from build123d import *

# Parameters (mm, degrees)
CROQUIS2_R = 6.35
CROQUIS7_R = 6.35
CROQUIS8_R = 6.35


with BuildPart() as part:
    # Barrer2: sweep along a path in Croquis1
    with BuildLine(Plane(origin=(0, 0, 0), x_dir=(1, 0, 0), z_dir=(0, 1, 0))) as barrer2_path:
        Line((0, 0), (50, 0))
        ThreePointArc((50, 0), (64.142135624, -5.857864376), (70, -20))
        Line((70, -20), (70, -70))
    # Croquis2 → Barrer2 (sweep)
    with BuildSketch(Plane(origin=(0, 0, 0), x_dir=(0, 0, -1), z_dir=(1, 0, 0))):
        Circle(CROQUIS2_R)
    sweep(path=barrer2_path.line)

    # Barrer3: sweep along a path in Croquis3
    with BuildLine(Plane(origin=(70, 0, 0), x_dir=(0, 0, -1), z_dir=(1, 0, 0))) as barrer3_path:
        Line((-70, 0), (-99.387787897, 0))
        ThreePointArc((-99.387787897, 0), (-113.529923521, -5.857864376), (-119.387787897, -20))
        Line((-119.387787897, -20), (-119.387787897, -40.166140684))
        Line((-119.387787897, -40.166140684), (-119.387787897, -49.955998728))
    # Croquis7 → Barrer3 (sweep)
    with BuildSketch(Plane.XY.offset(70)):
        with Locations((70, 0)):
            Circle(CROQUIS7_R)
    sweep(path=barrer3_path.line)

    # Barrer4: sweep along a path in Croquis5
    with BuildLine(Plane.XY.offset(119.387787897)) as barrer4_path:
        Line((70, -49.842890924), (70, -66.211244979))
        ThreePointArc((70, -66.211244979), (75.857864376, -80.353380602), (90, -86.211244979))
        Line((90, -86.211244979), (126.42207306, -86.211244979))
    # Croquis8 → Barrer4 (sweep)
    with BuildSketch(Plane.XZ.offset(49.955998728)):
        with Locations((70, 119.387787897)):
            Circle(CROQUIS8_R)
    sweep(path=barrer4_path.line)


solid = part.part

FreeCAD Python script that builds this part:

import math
import FreeCAD as App
import Part
import Sketcher
Q = App.Units.Quantity

doc = App.newDocument("Part")
body = doc.addObject("PartDesign::Body", "Body")

sketch1 = body.newObject("Sketcher::SketchObject", "Sketch")
sketch1.AttachmentSupport = (doc.getObject("YZ_Plane"), [""])
sketch1.MapMode = "FlatFace"
sketch1.addGeometry(Part.Circle(App.Vector(0, 0, 0), App.Vector(0, 0, 1), 6), False)
sketch1.addConstraint([
    Sketcher.Constraint("Coincident", 0, 3, -1, 1),
    Sketcher.Constraint("Diameter", 0, Q("12.7 mm")),
])

sketch2 = body.newObject("Sketcher::SketchObject", "Sketch001")
sketch2.AttachmentSupport = (doc.getObject("XZ_Plane"), [""])
sketch2.MapMode = "FlatFace"
sketch2.addGeometry([
    Part.LineSegment(App.Vector(0, 0, 0), App.Vector(50, 0, 0)),
    Part.ArcOfCircle(Part.Circle(App.Vector(50, 20, 0), App.Vector(0, 0, 1), 20), math.radians(-90), math.radians(0)),
    Part.LineSegment(App.Vector(70, 20, 0), App.Vector(70, 70, 0)),
], False)
sketch2.addConstraint([
    Sketcher.Constraint("Tangent", 0, 2, 1, 1),
    Sketcher.Constraint("Tangent", 1, 2, 2, 1),
    Sketcher.Constraint("Horizontal", 0),
    Sketcher.Constraint("Vertical", 2),
    Sketcher.Constraint("Coincident", 0, 1, -1, 1),
    Sketcher.Constraint("Equal", 0, 2),
    Sketcher.Constraint("Radius", 1, Q("20 mm")),
    Sketcher.Constraint("DistanceX", 0, 1, 0, 2, Q("50 mm")),
])
doc.recompute()

additivepipe = body.newObject("PartDesign::AdditivePipe", "AdditivePipe")
additivepipe.Profile = sketch1
additivepipe.Spine = (sketch2, ["Edge1", "Edge2", "Edge3"])

sketch3 = body.newObject("Sketcher::SketchObject", "Sketch002")
sketch3.AttachmentSupport = (doc.getObject("XY_Plane"), [""])
sketch3.MapMode = "FlatFace"
sketch3.AttachmentOffset = App.Placement(App.Vector(0, 0, 70), App.Rotation())
sketch3.addGeometry(Part.Circle(App.Vector(70, 0, 0), App.Vector(0, 0, 1), 6), False)
sketch3.addConstraint([
    Sketcher.Constraint("PointOnObject", 0, 3, -1),
    Sketcher.Constraint("Diameter", 0, Q("12.7 mm")),
    Sketcher.Constraint("DistanceX", -1, 1, 0, 3, Q("70 mm")),
])

sketch4 = body.newObject("Sketcher::SketchObject", "Sketch003")
sketch4.AttachmentSupport = (doc.getObject("YZ_Plane"), [""])
sketch4.MapMode = "FlatFace"
sketch4.AttachmentOffset = App.Placement(App.Vector(0, 0, 70), App.Rotation())
sketch4.addGeometry([
    Part.LineSegment(App.Vector(0, 70, 0), App.Vector(0, 99, 0)),
    Part.ArcOfCircle(Part.Circle(App.Vector(-20, 99, 0), App.Vector(0, 0, 1), 20), math.radians(0), math.radians(90)),
    Part.LineSegment(App.Vector(-20, 119, 0), App.Vector(-50, 119, 0)),
], False)
sketch4.addConstraint([
    Sketcher.Constraint("Tangent", 0, 2, 1, 1),
    Sketcher.Constraint("Tangent", 1, 2, 2, 1),
    Sketcher.Constraint("Vertical", 0),
    Sketcher.Constraint("Horizontal", 2),
    Sketcher.Constraint("PointOnObject", 0, 1, -2),
    Sketcher.Constraint("Radius", 1, Q("20 mm")),
    Sketcher.Constraint("DistanceY", -1, 1, 0, 1, Q("70 mm")),
    Sketcher.Constraint("DistanceX", 2, 2, 2, 1, Q("29.955999 mm")),
    Sketcher.Constraint("DistanceY", 0, 1, 0, 2, Q("29.387788 mm")),
])
doc.recompute()

additivepipe2 = body.newObject("PartDesign::AdditivePipe", "AdditivePipe001")
additivepipe2.Profile = sketch3
additivepipe2.Spine = (sketch4, ["Edge1", "Edge2", "Edge3"])

sketch5 = body.newObject("Sketcher::SketchObject", "Sketch004")
sketch5.AttachmentSupport = (doc.getObject("XZ_Plane"), [""])
sketch5.MapMode = "FlatFace"
sketch5.AttachmentOffset = App.Placement(App.Vector(0, 0, 49.955999), App.Rotation())
sketch5.addGeometry(Part.Circle(App.Vector(70, 119, 0), App.Vector(0, 0, 1), 6), False)
sketch5.addConstraint([
    Sketcher.Constraint("Diameter", 0, Q("12.7 mm")),
    Sketcher.Constraint("DistanceX", -1, 1, 0, 3, Q("70 mm")),
    Sketcher.Constraint("DistanceY", -1, 1, 0, 3, Q("119.387788 mm")),
])

sketch6 = body.newObject("Sketcher::SketchObject", "Sketch005")
sketch6.AttachmentSupport = (doc.getObject("XY_Plane"), [""])
sketch6.MapMode = "FlatFace"
sketch6.AttachmentOffset = App.Placement(App.Vector(0, 0, 119.387788), App.Rotation())
sketch6.addGeometry([
    Part.LineSegment(App.Vector(70, -50, 0), App.Vector(70, -66, 0)),
    Part.ArcOfCircle(Part.Circle(App.Vector(90, -66, 0), App.Vector(0, 0, 1), 20), math.radians(-180), math.radians(-90)),
    Part.LineSegment(App.Vector(90, -86, 0), App.Vector(126, -86, 0)),
], False)
sketch6.addConstraint([
    Sketcher.Constraint("Tangent", 0, 2, 1, 1),
    Sketcher.Constraint("Tangent", 1, 2, 2, 1),
    Sketcher.Constraint("Vertical", 0),
    Sketcher.Constraint("Horizontal", 2),
    Sketcher.Constraint("Radius", 1, Q("20 mm")),
    Sketcher.Constraint("DistanceX", -1, 1, 1, 3, Q("90 mm")),
    Sketcher.Constraint("DistanceX", 2, 1, 2, 2, Q("36.422073 mm")),
    Sketcher.Constraint("DistanceY", 0, 2, 0, 1, Q("16.368354 mm")),
    Sketcher.Constraint("DistanceY", 0, 1, -1, 1, Q("49.842891 mm")),
])
doc.recompute()

additivepipe3 = body.newObject("PartDesign::AdditivePipe", "AdditivePipe002")
additivepipe3.Profile = sketch5
additivepipe3.Spine = (sketch6, ["Edge1", "Edge2", "Edge3"])

doc.recompute()
